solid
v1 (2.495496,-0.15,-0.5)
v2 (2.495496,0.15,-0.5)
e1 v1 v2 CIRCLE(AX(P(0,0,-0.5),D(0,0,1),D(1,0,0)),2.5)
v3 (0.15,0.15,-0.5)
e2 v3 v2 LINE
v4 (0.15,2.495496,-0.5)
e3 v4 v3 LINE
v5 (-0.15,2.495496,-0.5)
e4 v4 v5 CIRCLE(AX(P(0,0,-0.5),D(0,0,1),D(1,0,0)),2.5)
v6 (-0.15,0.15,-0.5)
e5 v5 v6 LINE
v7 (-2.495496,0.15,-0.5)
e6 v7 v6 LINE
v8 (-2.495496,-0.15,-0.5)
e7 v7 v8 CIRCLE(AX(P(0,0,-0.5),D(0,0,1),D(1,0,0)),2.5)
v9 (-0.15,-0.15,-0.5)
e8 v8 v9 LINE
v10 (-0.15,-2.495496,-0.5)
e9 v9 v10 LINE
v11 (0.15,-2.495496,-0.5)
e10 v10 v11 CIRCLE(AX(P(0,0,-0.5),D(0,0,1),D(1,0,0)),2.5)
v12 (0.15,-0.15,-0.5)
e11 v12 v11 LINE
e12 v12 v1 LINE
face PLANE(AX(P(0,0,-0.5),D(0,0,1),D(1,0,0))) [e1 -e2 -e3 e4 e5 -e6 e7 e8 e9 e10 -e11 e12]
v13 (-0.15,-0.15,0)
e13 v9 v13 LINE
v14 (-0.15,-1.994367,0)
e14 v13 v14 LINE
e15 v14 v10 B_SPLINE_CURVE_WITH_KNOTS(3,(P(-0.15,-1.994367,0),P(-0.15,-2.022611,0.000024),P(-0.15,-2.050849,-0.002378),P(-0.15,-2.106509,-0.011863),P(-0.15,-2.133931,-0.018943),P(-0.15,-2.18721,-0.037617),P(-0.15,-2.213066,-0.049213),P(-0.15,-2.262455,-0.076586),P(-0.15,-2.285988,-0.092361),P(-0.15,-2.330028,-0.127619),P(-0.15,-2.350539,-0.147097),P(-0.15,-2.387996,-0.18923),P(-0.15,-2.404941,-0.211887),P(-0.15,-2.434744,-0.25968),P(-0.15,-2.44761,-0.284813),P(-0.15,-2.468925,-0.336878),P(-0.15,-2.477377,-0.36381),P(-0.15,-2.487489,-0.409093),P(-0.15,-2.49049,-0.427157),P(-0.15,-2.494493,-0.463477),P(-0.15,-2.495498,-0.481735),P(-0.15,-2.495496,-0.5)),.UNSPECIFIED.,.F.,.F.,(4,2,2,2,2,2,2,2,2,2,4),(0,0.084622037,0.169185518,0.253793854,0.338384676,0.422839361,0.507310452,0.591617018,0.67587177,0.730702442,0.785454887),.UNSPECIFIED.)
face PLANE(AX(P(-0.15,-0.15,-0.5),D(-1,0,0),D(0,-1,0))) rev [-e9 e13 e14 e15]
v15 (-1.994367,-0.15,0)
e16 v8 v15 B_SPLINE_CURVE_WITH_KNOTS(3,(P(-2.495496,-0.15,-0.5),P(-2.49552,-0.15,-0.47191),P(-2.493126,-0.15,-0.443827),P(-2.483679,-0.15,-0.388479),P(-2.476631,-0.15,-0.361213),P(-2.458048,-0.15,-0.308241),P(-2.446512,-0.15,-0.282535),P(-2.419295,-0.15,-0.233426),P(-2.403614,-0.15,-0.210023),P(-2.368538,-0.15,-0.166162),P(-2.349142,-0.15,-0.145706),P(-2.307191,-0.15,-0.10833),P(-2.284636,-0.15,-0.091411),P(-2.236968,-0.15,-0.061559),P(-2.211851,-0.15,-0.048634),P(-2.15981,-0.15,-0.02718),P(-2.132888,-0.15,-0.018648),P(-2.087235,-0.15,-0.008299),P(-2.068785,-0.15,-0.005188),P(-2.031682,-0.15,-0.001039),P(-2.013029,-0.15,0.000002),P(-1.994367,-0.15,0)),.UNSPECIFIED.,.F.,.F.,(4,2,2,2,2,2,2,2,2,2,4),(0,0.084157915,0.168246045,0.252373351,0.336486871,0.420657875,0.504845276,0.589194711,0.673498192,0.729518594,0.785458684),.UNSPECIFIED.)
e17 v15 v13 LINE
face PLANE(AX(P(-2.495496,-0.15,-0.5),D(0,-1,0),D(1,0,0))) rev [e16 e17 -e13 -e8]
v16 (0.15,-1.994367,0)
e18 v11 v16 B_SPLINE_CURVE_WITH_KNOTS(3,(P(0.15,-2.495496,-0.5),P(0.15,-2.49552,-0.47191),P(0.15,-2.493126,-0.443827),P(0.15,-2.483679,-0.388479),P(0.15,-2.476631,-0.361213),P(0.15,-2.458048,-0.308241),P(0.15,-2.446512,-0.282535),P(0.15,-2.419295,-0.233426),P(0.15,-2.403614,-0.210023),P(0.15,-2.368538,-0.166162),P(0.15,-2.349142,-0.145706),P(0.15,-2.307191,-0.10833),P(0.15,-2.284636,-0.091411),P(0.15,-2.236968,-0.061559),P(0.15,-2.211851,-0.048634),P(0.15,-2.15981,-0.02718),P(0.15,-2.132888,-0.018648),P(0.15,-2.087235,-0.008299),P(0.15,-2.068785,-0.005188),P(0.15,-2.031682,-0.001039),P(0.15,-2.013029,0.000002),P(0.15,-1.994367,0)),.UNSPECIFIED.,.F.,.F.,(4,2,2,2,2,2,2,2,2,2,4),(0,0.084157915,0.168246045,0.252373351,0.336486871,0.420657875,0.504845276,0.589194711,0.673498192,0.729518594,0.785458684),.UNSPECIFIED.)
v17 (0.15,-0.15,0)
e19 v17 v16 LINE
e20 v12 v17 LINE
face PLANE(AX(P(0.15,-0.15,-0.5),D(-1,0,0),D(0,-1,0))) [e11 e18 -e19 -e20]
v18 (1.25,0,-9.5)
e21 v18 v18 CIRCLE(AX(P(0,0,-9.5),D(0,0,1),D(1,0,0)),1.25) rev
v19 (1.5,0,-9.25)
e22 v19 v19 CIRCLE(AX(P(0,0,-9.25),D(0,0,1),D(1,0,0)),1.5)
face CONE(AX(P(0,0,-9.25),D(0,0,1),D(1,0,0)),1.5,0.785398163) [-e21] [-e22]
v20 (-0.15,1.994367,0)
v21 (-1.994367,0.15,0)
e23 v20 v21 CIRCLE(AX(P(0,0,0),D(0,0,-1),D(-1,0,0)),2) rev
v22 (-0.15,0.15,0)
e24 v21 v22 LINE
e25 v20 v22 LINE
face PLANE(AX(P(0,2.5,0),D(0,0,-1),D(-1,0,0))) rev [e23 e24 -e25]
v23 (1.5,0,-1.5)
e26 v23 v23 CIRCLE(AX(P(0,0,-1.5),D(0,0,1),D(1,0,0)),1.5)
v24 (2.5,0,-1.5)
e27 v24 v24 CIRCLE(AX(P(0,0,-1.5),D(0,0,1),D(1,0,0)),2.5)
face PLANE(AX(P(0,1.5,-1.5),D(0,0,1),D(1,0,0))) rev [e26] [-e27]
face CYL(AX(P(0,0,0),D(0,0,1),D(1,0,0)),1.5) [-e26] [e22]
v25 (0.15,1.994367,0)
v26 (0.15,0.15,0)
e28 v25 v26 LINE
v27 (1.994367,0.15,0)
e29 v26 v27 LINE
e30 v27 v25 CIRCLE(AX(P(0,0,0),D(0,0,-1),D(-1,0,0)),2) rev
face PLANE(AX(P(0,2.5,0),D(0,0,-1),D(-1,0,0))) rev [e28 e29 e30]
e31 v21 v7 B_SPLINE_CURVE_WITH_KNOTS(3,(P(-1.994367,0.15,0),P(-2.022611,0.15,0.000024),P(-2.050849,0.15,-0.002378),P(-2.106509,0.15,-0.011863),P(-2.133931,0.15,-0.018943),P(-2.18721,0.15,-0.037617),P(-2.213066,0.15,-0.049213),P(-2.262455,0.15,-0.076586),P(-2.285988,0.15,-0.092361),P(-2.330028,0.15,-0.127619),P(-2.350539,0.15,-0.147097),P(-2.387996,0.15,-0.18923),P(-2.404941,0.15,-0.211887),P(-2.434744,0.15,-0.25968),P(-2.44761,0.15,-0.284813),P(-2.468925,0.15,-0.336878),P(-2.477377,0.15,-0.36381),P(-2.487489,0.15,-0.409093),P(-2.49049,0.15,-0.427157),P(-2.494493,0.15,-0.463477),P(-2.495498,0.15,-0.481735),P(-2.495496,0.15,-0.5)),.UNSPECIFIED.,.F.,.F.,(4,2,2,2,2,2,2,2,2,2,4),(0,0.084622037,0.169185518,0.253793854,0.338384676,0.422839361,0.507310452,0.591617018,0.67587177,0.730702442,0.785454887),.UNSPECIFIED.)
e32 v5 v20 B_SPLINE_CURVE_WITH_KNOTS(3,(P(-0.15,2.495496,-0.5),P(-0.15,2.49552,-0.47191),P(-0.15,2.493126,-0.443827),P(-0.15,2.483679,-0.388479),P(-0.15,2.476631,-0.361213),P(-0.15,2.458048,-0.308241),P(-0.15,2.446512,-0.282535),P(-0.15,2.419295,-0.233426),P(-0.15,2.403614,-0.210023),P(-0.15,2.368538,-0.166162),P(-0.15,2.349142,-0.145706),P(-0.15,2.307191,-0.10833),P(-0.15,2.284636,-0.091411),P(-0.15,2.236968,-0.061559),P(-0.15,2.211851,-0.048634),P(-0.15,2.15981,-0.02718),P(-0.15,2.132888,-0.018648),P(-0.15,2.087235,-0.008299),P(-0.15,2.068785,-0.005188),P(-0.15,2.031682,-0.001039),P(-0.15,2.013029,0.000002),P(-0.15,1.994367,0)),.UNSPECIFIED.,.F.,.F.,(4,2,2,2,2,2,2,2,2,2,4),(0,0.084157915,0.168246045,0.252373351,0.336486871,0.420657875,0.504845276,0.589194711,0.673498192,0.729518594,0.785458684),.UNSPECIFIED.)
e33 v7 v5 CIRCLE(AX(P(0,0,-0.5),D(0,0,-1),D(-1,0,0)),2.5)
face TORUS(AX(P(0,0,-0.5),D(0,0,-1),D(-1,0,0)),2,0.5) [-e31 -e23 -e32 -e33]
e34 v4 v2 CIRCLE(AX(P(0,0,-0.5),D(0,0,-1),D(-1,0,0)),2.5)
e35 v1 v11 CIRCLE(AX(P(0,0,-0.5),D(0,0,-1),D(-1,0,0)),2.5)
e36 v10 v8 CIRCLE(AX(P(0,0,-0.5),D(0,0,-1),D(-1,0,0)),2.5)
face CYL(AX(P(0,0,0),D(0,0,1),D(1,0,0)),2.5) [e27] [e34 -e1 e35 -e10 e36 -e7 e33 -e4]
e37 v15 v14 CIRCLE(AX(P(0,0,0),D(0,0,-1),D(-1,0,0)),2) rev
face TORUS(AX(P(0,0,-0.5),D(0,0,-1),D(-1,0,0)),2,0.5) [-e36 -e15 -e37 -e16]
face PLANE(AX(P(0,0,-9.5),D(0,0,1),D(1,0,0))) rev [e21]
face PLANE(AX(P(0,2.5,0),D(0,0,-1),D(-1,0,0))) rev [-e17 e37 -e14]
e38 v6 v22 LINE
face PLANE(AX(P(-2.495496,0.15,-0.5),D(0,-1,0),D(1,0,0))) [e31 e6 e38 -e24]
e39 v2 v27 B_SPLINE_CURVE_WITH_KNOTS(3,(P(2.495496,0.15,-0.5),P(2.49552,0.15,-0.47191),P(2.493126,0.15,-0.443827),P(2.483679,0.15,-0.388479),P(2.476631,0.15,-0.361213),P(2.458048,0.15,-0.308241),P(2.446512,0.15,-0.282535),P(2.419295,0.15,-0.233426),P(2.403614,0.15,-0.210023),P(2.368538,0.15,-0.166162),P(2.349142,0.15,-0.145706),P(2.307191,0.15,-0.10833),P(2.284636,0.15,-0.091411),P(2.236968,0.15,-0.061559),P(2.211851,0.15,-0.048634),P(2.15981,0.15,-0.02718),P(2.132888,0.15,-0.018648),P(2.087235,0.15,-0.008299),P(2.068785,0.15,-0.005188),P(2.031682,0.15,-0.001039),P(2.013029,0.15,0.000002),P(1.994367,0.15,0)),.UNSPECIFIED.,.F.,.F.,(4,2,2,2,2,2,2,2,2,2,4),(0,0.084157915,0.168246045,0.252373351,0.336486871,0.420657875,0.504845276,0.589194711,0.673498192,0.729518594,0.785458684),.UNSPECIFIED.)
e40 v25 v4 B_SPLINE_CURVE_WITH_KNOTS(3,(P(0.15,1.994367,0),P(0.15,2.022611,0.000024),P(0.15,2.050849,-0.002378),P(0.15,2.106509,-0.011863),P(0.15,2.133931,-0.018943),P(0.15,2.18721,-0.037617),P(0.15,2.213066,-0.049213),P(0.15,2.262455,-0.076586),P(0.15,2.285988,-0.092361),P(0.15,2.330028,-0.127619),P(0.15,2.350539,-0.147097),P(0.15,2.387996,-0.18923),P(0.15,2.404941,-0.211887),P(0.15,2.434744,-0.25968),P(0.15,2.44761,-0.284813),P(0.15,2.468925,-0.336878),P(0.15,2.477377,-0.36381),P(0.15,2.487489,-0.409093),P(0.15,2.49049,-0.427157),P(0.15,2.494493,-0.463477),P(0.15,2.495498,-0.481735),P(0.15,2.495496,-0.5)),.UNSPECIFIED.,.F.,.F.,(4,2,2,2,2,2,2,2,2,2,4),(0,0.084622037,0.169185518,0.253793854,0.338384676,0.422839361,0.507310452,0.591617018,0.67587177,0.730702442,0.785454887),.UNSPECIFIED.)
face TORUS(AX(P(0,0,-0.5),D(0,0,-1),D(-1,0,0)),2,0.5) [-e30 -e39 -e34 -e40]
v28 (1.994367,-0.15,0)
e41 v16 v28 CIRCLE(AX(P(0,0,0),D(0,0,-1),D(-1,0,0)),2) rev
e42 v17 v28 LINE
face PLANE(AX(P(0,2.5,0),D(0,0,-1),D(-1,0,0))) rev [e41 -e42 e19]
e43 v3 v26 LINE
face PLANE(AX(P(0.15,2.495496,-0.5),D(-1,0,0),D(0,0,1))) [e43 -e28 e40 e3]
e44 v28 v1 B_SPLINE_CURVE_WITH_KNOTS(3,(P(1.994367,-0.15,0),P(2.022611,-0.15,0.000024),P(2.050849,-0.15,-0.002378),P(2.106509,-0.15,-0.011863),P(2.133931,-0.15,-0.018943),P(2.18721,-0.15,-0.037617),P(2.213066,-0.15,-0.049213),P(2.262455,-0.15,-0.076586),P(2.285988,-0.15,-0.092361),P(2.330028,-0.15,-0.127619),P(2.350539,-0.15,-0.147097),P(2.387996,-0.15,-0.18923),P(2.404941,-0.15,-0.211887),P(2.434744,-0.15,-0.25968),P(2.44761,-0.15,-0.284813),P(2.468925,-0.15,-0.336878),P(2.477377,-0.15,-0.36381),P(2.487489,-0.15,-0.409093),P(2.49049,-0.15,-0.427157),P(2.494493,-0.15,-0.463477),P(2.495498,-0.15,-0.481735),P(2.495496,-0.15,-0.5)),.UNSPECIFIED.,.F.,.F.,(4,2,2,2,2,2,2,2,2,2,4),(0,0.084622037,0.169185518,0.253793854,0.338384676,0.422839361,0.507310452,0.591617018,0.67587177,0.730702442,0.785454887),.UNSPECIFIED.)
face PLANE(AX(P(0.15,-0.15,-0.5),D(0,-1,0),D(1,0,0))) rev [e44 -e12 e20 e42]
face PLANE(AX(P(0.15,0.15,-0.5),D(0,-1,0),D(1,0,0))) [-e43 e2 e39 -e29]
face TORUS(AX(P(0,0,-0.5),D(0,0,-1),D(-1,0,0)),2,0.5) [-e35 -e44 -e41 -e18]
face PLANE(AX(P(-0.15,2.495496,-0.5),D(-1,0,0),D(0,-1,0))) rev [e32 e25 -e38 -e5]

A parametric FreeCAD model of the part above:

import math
import FreeCAD as App
import Part
import Sketcher
Q = App.Units.Quantity


def edges_at(feature, points):
    """Names of the edges that pass closest to the given points."""
    edges = feature.Shape.Edges
    near = lambda p: min(range(len(edges)), key=lambda i: edges[i].distToShape(Part.Vertex(*p))[0])
    return sorted({f"Edge{near(p) + 1}" for p in points})


def add_polygon(sketch, points):
    """Adds a closed chain of lines whose ends are joined by coincident constraints."""
    first, n = sketch.GeometryCount, len(points)
    for a, b in zip(points, points[1:] + points[:1]):
        sketch.addGeometry(Part.LineSegment(App.Vector(*a, 0), App.Vector(*b, 0)), False)
    for i in range(n):
        sketch.addConstraint(Sketcher.Constraint("Coincident", first + i, 2, first + (i + 1) % n, 1))

doc = App.newDocument("Part")
body = doc.addObject("PartDesign::Body", "Body")

# Sketch on YZ plane
sketch1 = doc.addObject("Sketcher::SketchObject", "Sketch")
body.addObject(sketch1)
sketch1.AttachmentSupport = (doc.YZ_Plane, [""])
sketch1.MapMode = "FlatFace"
add_polygon(sketch1, [(0, -9.5), (1.5, -9.5), (1.5, -1.5), (2.5, -1.5), (2.5, 0), (0, 0)])  # lines 0-5
sketch1.addConstraint([
    Sketcher.Constraint("Horizontal", 0),
    Sketcher.Constraint("Vertical", 1),
    Sketcher.Constraint("Horizontal", 2),
    Sketcher.Constraint("Vertical", 3),
    Sketcher.Constraint("Horizontal", 4),
    Sketcher.Constraint("Vertical", 5),
    Sketcher.Constraint("Coincident", 4, 2, -1, 1),
    Sketcher.Constraint("Equal", 0, 3),
    Sketcher.Constraint("DistanceX", 2, 1, 2, 2, Q("1 mm")),
    Sketcher.Constraint("DistanceY", 1, 1, 1, 2, Q("8 mm")),
    Sketcher.Constraint("DistanceX", 0, 1, 0, 2, Q("1.5 mm")),
])
revolution = doc.addObject("PartDesign::Revolution", "Revolution")
body.addObject(revolution)
revolution.Profile = sketch1
revolution.ReferenceAxis = (sketch1, ["V_Axis"])
revolution.Angle = 360
doc.recompute()

chamfer = doc.addObject("PartDesign::Chamfer", "Chamfer")
body.addObject(chamfer)
chamfer.Base = (revolution, edges_at(revolution, [(0, -1.5, -9.5)]))
chamfer.Size = 0.25

# Sketch on XY plane
sketch2 = doc.addObject("Sketcher::SketchObject", "Sketch001")
body.addObject(sketch2)
sketch2.AttachmentSupport = (doc.XY_Plane, [""])
sketch2.MapMode = "FlatFace"
sketch2.addGeometry([
    Part.LineSegment(App.Vector(-0.15, 2.5, 0), App.Vector(-0.15, 0.15, 0)),  # 0
    Part.LineSegment(App.Vector(-0.15, 0.15, 0), App.Vector(-2.5, 0.15, 0)),  # 1
    Part.ArcOfCircle(Part.Circle(App.Vector(0, 0, 0), App.Vector(0, 0, 1), 2.5), math.radians(176.56), math.radians(183.44)),  # 2
    Part.LineSegment(App.Vector(-2.5, -0.15, 0), App.Vector(-0.15, -0.15, 0)),  # 3
    Part.LineSegment(App.Vector(-0.15, -0.15, 0), App.Vector(-0.15, -2.5, 0)),  # 4
    Part.ArcOfCircle(Part.Circle(App.Vector(0, 0, 0), App.Vector(0, 0, 1), 2.5), math.radians(-93.44), math.radians(-86.56)),  # 5
    Part.LineSegment(App.Vector(0.15, -2.5, 0), App.Vector(0.15, -0.15, 0)),  # 6
    Part.LineSegment(App.Vector(0.15, -0.15, 0), App.Vector(2.5, -0.15, 0)),  # 7
    Part.ArcOfCircle(Part.Circle(App.Vector(0, 0, 0), App.Vector(0, 0, 1), 2.5), math.radians(-3.44), math.radians(3.44)),  # 8
    Part.LineSegment(App.Vector(2.5, 0.15, 0), App.Vector(0.15, 0.15, 0)),  # 9
    Part.LineSegment(App.Vector(0.15, 0.15, 0), App.Vector(0.15, 2.5, 0)),  # 10
    Part.ArcOfCircle(Part.Circle(App.Vector(0, 0, 0), App.Vector(0, 0, 1), 2.5), math.radians(86.56), math.radians(93.44)),  # 11
], False)
sketch2.addConstraint([
    Sketcher.Constraint("Coincident", 0, 2, 1, 1),
    Sketcher.Constraint("Coincident", 1, 2, 2, 1),
    Sketcher.Constraint("Coincident", 2, 2, 3, 1),
    Sketcher.Constraint("Coincident", 3, 2, 4, 1),
    Sketcher.Constraint("Coincident", 4, 2, 5, 1),
    Sketcher.Constraint("Coincident", 5, 2, 6, 1),
    Sketcher.Constraint("Coincident", 6, 2, 7, 1),
    Sketcher.Constraint("Coincident", 7, 2, 8, 1),
    Sketcher.Constraint("Coincident", 8, 2, 9, 1),
    Sketcher.Constraint("Coincident", 9, 2, 10, 1),
    Sketcher.Constraint("Coincident", 10, 2, 11, 1),
    Sketcher.Constraint("Coincident", 11, 2, 0, 1),
    Sketcher.Constraint("Vertical", 0),
    Sketcher.Constraint("Horizontal", 1),
    Sketcher.Constraint("Horizontal", 3),
    Sketcher.Constraint("Vertical", 4),
    Sketcher.Constraint("Vertical", 6),
    Sketcher.Constraint("Horizontal", 7),
    Sketcher.Constraint("Horizontal", 9),
    Sketcher.Constraint("Vertical", 10),
    Sketcher.Constraint("Coincident", 2, 3, -1, 1),
    Sketcher.Constraint("Coincident", 5, 3, -1, 1),
    Sketcher.Constraint("Coincident", 8, 3, -1, 1),
    Sketcher.Constraint("Coincident", 11, 3, -1, 1),
    Sketcher.Constraint("Equal", 2, 5),
    Sketcher.Constraint("Equal", 5, 8),
    Sketcher.Constraint("Equal", 8, 11),
    Sketcher.Constraint("Symmetric", 0, 2, 6, 2, -1, 1),
    Sketcher.Constraint("Symmetric", 3, 2, 9, 2, -1, 1),
    Sketcher.Constraint("Symmetric", 3, 2, 6, 2, -2),
    Sketcher.Constraint("Equal", 9, 0),
    Sketcher.Constraint("Radius", 2, Q("2.5 mm")),
    Sketcher.Constraint("DistanceY", 2, 2, 1, 2, Q("0.3 mm")),
])
pocket1 = doc.addObject("PartDesign::Pocket", "Pocket")
body.addObject(pocket1)
pocket1.Profile = sketch2
pocket1.Length = 0.5
doc.recompute()

fillet = doc.addObject("PartDesign::Fillet", "Fillet")
body.addObject(fillet)
fillet.Base = (pocket1, edges_at(pocket1, [
    (-1.768, -1.768, 0),
    (1.768, -1.768, 0),
    (1.768, 1.768, 0),
    (-1.768, 1.768, 0),
]))
fillet.Radius = 0.5

doc.recompute()
